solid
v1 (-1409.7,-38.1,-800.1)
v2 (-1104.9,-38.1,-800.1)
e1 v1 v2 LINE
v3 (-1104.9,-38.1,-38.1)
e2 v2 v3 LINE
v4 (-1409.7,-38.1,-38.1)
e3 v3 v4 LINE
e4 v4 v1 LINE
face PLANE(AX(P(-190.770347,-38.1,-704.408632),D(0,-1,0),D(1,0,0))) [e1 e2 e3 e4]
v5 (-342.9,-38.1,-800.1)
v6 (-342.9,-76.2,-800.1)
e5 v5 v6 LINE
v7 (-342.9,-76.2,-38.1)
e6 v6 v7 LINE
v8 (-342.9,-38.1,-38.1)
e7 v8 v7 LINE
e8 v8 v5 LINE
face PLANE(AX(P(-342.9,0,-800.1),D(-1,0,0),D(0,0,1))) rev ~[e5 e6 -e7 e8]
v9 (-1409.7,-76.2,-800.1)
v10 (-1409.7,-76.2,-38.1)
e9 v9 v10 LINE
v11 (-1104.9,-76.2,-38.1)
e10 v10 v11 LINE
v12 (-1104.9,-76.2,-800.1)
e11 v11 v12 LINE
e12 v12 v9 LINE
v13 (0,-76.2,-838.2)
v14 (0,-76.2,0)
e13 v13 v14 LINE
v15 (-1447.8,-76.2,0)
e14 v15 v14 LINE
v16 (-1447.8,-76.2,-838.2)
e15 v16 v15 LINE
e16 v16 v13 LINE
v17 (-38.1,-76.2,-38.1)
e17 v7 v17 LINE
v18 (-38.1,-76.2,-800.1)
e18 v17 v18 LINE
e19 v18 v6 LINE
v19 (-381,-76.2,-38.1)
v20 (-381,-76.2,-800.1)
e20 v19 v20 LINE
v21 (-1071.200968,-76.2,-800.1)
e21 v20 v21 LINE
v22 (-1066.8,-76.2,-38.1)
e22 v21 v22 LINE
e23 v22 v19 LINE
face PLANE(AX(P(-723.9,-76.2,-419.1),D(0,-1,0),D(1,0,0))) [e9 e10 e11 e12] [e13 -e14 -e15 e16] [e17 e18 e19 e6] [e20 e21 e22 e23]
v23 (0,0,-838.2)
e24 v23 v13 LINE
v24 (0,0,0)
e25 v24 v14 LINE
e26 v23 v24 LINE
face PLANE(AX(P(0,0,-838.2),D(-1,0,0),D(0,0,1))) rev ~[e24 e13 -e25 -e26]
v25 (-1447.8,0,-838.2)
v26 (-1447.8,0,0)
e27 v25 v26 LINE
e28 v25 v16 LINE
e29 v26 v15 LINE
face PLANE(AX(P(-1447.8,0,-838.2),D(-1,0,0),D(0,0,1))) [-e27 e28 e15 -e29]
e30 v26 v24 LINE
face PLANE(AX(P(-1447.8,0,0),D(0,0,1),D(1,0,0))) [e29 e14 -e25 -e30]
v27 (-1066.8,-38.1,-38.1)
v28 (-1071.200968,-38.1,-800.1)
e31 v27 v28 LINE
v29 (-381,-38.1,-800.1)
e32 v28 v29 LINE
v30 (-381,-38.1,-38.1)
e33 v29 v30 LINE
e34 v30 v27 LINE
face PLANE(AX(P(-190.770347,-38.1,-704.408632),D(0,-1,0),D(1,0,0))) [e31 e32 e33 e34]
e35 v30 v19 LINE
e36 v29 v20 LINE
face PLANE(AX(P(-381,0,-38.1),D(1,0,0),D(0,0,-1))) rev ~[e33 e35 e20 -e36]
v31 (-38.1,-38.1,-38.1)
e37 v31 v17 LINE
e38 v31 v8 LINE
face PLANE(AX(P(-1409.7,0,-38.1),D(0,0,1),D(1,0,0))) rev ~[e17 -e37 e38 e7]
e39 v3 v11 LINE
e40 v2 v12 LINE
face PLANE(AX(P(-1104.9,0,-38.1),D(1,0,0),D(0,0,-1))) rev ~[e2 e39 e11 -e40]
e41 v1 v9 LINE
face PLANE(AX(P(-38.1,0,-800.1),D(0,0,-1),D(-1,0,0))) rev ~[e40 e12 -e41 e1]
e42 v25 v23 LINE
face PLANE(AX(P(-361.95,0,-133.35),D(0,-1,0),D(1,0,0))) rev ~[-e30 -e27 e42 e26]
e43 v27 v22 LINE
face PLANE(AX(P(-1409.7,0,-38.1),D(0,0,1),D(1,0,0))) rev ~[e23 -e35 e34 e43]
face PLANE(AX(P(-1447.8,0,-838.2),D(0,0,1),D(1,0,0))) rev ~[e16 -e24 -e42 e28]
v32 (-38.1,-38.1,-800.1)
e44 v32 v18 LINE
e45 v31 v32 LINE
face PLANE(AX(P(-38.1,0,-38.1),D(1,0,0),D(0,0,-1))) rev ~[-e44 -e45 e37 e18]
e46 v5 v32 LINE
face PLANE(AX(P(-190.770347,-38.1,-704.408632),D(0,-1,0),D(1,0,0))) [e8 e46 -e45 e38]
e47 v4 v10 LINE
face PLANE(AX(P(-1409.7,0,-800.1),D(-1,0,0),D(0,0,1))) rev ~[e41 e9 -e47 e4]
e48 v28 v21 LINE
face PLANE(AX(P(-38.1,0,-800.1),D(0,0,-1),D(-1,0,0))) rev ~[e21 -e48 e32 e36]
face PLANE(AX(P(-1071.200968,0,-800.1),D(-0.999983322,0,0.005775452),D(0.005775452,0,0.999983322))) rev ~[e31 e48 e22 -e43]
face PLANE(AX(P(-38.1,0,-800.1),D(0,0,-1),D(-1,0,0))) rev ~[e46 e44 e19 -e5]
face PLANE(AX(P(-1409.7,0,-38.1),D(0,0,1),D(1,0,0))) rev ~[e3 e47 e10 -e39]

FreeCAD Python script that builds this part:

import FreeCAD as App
import Part
import Sketcher
Q = App.Units.Quantity


def add_polygon(sketch, points):
    """Adds a closed chain of lines whose ends are joined by coincident constraints."""
    first, n = sketch.GeometryCount, len(points)
    for a, b in zip(points, points[1:] + points[:1]):
        sketch.addGeometry(Part.LineSegment(App.Vector(*a, 0), App.Vector(*b, 0)), False)
    for i in range(n):
        sketch.addConstraint(Sketcher.Constraint("Coincident", first + i, 2, first + (i + 1) % n, 1))

doc = App.newDocument("Part")
body = doc.addObject("PartDesign::Body", "Body")

# Sketch on XZ plane
sketch1 = doc.addObject("Sketcher::SketchObject", "Sketch")
body.addObject(sketch1)
sketch1.AttachmentSupport = (doc.XZ_Plane, [""])
sketch1.MapMode = "FlatFace"
add_polygon(sketch1, [(-38, -229), (-38, -38), (-1410, -38), (-1410, -229)])  # lines 0-3
sketch1.addConstraint([
    Sketcher.Constraint("Vertical", 0),
    Sketcher.Constraint("Horizontal", 1),
    Sketcher.Constraint("Vertical", 2),
    Sketcher.Constraint("Horizontal", 3),
    Sketcher.Constraint("DistanceX", 1, 2, 1, 1, Q("54 in")),
    Sketcher.Constraint("DistanceY", 0, 1, 0, 2, Q("7.5 in")),
    Sketcher.Constraint("DistanceY", 2, 2, -1, 1, Q("9 in")),
    Sketcher.Constraint("DistanceX", 0, 2, -1, 1, Q("1.5 in")),
])
pad1 = doc.addObject("PartDesign::Pad", "Pad")
body.addObject(pad1)
pad1.Profile = sketch1
pad1.Length = Q("1.5 in")

# Sketch on XZ plane
sketch2 = doc.addObject("Sketcher::SketchObject", "Sketch001")
body.addObject(sketch2)
sketch2.AttachmentSupport = (doc.XZ_Plane, [""])
sketch2.MapMode = "FlatFace"
add_polygon(sketch2, [(-38, -427), (-38, -229), (-1410, -229), (-1410, -419), (-1105, -421), (-1069, -421)])  # lines 0-5
sketch2.addConstraint([
    Sketcher.Constraint("Vertical", 0),
    Sketcher.Constraint("Horizontal", 1),
    Sketcher.Constraint("Vertical", 2),
    Sketcher.Constraint("Parallel", 3, 4),
    Sketcher.Constraint("Parallel", 4, 5),
    Sketcher.Constraint("DistanceX", 1, 2, 1, 1, Q("54 in")),
    Sketcher.Constraint("DistanceY", 2, 2, 2, 1, Q("7.5 in")),
    Sketcher.Constraint("DistanceY", 0, 2, -1, 1, Q("9 in")),
    Sketcher.Constraint("DistanceX", 2, 2, 3, 2, Q("12 in")),
    Sketcher.Constraint("DistanceX", 0, 2, -1, 1, Q("1.5 in")),
    Sketcher.Constraint("DistanceY", 0, 1, 0, 2, 198.421742),
    Sketcher.Constraint("Distance", 4, 35.88875),
])
pad2 = doc.addObject("PartDesign::Pad", "Pad001")
body.addObject(pad2)
pad2.Profile = sketch2
pad2.Length = Q("1.5 in")

# Sketch on XZ plane
sketch3 = doc.addObject("Sketcher::SketchObject", "Sketch002")
body.addObject(sketch3)
sketch3.AttachmentSupport = (doc.XZ_Plane, [""])
sketch3.MapMode = "FlatFace"
add_polygon(sketch3, [(-38, -610), (-38, -427), (-1069, -421), (-1105, -421), (-1410, -419), (-1410, -602), (-1105, -603), (-1070, -604), (-381, -608), (-343, -608)])  # lines 0-9
sketch3.addConstraint([
    Sketcher.Constraint("Vertical", 0),
    Sketcher.Constraint("Vertical", 4),
    Sketcher.Constraint("Parallel", 1, 2),
    Sketcher.Constraint("Parallel", 2, 3),
    Sketcher.Constraint("Parallel", 3, 5),
    Sketcher.Constraint("Parallel", 5, 6),
    Sketcher.Constraint("Parallel", 6, 7),
    Sketcher.Constraint("Parallel", 7, 8),
    Sketcher.Constraint("Parallel", 8, 9),
    Sketcher.Constraint("Vertical", 2, 2, 5, 2),
    Sketcher.Constraint("Equal", 5, 9),
    Sketcher.Constraint("DistanceX", 7, 2, -1, 1, Q("15 in")),
    Sketcher.Constraint("DistanceY", 9, 2, -1, 1, Q("24 in")),
    Sketcher.Constraint("DistanceX", 2, 2, 0, 2, Q("42 in")),
    Sketcher.Constraint("DistanceX", 3, 2, 2, 2, Q("12 in")),
    Sketcher.Constraint("DistanceX", 0, 2, -1, 1, Q("1.5 in")),
    Sketcher.Constraint("DistanceY", 3, 2, -1, 1, Q("16.5 in")),
    Sketcher.Constraint("DistanceY", 0, 1, 0, 2, 182.578258),
    Sketcher.Constraint("Distance", 2, 35.88875),
    Sketcher.Constraint("Distance", 6, 34.834278),
])
pad3 = doc.addObject("PartDesign::Pad", "Pad002")
body.addObject(pad3)
pad3.Profile = sketch3
pad3.Length = Q("1.5 in")

# Sketch on XZ plane
sketch4 = doc.addObject("Sketcher::SketchObject", "Sketch003")
body.addObject(sketch4)
sketch4.AttachmentSupport = (doc.XZ_Plane, [""])
sketch4.MapMode = "FlatFace"
add_polygon(sketch4, [(-38, -800), (-38, -610), (-343, -608), (-381, -608), (-1070, -604), (-1105, -603), (-1410, -602), (-1410, -800)])  # lines 0-7
sketch4.addConstraint([
    Sketcher.Constraint("Vertical", 0),
    Sketcher.Constraint("Vertical", 6),
    Sketcher.Constraint("Horizontal", 7),
    Sketcher.Constraint("Parallel", 1, 2),
    Sketcher.Constraint("Parallel", 2, 3),
    Sketcher.Constraint("Parallel", 3, 4),
    Sketcher.Constraint("Parallel", 4, 5),
    Sketcher.Constraint("Equal", 1, 5),
    Sketcher.Constraint("DistanceX", 7, 1, 7, 2, Q("54 in")),
    Sketcher.Constraint("DistanceY", 0, 1, 0, 2, Q("7.5 in")),
    Sketcher.Constraint("DistanceY", 0, 2, -1, 1, Q("24 in")),
    Sketcher.Constraint("DistanceX", 2, 2, -1, 1, Q("15 in")),
    Sketcher.Constraint("DistanceX", 1, 2, 0, 2, Q("12 in")),
    Sketcher.Constraint("DistanceX", 0, 2, -1, 1, Q("1.5 in")),
    Sketcher.Constraint("DistanceY", 6, 2, 6, 1, 198.421742),
    Sketcher.Constraint("Distance", 4, 34.834278),
])
pad4 = doc.addObject("PartDesign::Pad", "Pad003")
body.addObject(pad4)
pad4.Profile = sketch4
pad4.Length = Q("1.5 in")

# Sketch on XZ plane
sketch5 = doc.addObject("Sketcher::SketchObject", "Sketch004")
body.addObject(sketch5)
sketch5.AttachmentSupport = (doc.XZ_Plane, [""])
sketch5.MapMode = "FlatFace"
add_polygon(sketch5, [(-1448, 0), (-1448, -838), (0, -838), (0, 0)])  # lines 0-3
add_polygon(sketch5, [(-1410, -38), (-38, -38), (-38, -800), (-1410, -800)])  # lines 4-7
sketch5.addConstraint([
    Sketcher.Constraint("Vertical", 0),
    Sketcher.Constraint("Horizontal", 1),
    Sketcher.Constraint("Vertical", 2),
    Sketcher.Constraint("Horizontal", 3),
    Sketcher.Constraint("Horizontal", 4),
    Sketcher.Constraint("Vertical", 5),
    Sketcher.Constraint("Horizontal", 6),
    Sketcher.Constraint("Vertical", 7),
    Sketcher.Constraint("Coincident", 2, 2, -1, 1),
    Sketcher.Constraint("DistanceX", 1, 1, 1, 2, Q("57 in")),
    Sketcher.Constraint("DistanceX", 4, 1, 4, 2, Q("54 in")),
    Sketcher.Constraint("DistanceY", 0, 2, 0, 1, Q("33 in")),
    Sketcher.Constraint("DistanceY", 5, 2, 5, 1, Q("30 in")),
    Sketcher.Constraint("DistanceX", 4, 2, -1, 1, Q("1.5 in")),
    Sketcher.Constraint("DistanceY", 4, 2, -1, 1, Q("1.5 in")),
])
pad5 = doc.addObject("PartDesign::Pad", "Pad004")
body.addObject(pad5)
pad5.Profile = sketch5
pad5.Length = Q("3 in")

# Sketch on XZ plane
sketch6 = doc.addObject("Sketcher::SketchObject", "Sketch005")
body.addObject(sketch6)
sketch6.AttachmentSupport = (doc.XZ_Plane, [""])
sketch6.MapMode = "FlatFace"
add_polygon(sketch6, [(-1067, -38), (-1105, -38), (-1105, -800), (-1071, -800)])  # lines 0-3
sketch6.addConstraint([
    Sketcher.Constraint("Horizontal", 0),
    Sketcher.Constraint("Vertical", 1),
    Sketcher.Constraint("Horizontal", 2),
    Sketcher.Constraint("DistanceY", 1, 2, 1, 1, Q("30 in")),
    Sketcher.Constraint("DistanceX", 0, 2, 0, 1, Q("1.5 in")),
    Sketcher.Constraint("DistanceX", 3, 2, -1, 1, Q("42 in")),
    Sketcher.Constraint("DistanceY", 0, 2, -1, 1, Q("1.5 in")),
    Sketcher.Constraint("Distance", 3, 762.012709),
])
pad6 = doc.addObject("PartDesign::Pad", "Pad005")
body.addObject(pad6)
pad6.Profile = sketch6
pad6.Length = Q("3 in")

# Sketch on XZ plane
sketch7 = doc.addObject("Sketcher::SketchObject", "Sketch006")
body.addObject(sketch7)
sketch7.AttachmentSupport = (doc.XZ_Plane, [""])
sketch7.MapMode = "FlatFace"
add_polygon(sketch7, [(-381, -38), (-381, -800), (-343, -800), (-343, -38)])  # lines 0-3
sketch7.addConstraint([
    Sketcher.Constraint("Vertical", 0),
    Sketcher.Constraint("Horizontal", 1),
    Sketcher.Constraint("Vertical", 2),
    Sketcher.Constraint("Horizontal", 3),
    Sketcher.Constraint("DistanceY", 0, 2, 0, 1, Q("30 in")),
    Sketcher.Constraint("DistanceX", 1, 1, 1, 2, Q("1.5 in")),
    Sketcher.Constraint("DistanceX", 0, 2, -1, 1, Q("15 in")),
    Sketcher.Constraint("DistanceY", 0, 2, -1, 1, Q("31.5 in")),
])
pad7 = doc.addObject("PartDesign::Pad", "Pad006")
body.addObject(pad7)
pad7.Profile = sketch7
pad7.Length = Q("3 in")

doc.recompute()
